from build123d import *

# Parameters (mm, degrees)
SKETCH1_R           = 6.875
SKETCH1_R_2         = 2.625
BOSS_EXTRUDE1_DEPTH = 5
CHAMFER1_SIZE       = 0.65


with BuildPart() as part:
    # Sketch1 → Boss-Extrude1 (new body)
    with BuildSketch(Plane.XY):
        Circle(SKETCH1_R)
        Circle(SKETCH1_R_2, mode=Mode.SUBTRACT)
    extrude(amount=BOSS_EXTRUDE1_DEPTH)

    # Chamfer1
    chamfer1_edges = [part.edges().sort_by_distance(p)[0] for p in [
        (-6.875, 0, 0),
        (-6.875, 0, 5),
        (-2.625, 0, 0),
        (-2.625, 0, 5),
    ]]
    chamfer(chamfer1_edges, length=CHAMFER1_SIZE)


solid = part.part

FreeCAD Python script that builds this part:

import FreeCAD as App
import Part
import Sketcher

V = App.Vector
Q = App.Units.Quantity


def edges_at(feature, points):
    """Names of the edges that pass closest to the given points."""
    edges = feature.Shape.Edges
    near = lambda p: min(range(len(edges)), key=lambda i: edges[i].distToShape(Part.Vertex(*p))[0])
    return sorted({f"Edge{near(p) + 1}" for p in points})

doc = App.newDocument("Part")
params = doc.addObject("Spreadsheet::Sheet", "Params")
for row, (alias, value) in enumerate([
    ("sketch1_diameter", "13.75 mm"),
    ("sketch1_diameter2", "5.25 mm"),
    ("pad1_length", "5 mm"),
    ("chamfer_size", "0.65 mm"),
], start=1):
    params.set(f"A{row}", alias)
    params.set(f"B{row}", "=" + value)
    params.setAlias(f"B{row}", alias)

body = doc.addObject("PartDesign::Body", "Body")

sketch1 = body.newObject("Sketcher::SketchObject", "Sketch")
sketch1.AttachmentSupport = (doc.getObject("XY_Plane"), [""])
sketch1.MapMode = "FlatFace"
sketch1.addGeometry([
    Part.Circle(V(0, 0, 0), V(0, 0, 1), 6.9),
    Part.Circle(V(0, 0, 0), V(0, 0, 1), 2.6),
], False)
sketch1.addConstraint([
    Sketcher.Constraint("Coincident", 0, 3, -1, 1),
    Sketcher.Constraint("Coincident", 1, 3, -1, 1),
    Sketcher.Constraint("Diameter", 0, Q("13.75 mm")),
    Sketcher.Constraint("Diameter", 1, Q("5.25 mm")),
])
sketch1.setExpression("Constraints[2]", "Params.sketch1_diameter")
sketch1.setExpression("Constraints[3]", "Params.sketch1_diameter2")
pad1 = body.newObject("PartDesign::Pad", "Pad")
pad1.Profile = sketch1
pad1.setExpression("Length", "Params.pad1_length")
doc.recompute()

chamfer = body.newObject("PartDesign::Chamfer", "Chamfer")
chamfer.Base = (pad1, edges_at(pad1, [
    (-6.875, 0, 0),
    (-6.875, 0, 5),
    (-2.625, 0, 0),
    (-2.625, 0, 5),
]))
chamfer.setExpression("Size", "Params.chamfer_size")

doc.recompute()
